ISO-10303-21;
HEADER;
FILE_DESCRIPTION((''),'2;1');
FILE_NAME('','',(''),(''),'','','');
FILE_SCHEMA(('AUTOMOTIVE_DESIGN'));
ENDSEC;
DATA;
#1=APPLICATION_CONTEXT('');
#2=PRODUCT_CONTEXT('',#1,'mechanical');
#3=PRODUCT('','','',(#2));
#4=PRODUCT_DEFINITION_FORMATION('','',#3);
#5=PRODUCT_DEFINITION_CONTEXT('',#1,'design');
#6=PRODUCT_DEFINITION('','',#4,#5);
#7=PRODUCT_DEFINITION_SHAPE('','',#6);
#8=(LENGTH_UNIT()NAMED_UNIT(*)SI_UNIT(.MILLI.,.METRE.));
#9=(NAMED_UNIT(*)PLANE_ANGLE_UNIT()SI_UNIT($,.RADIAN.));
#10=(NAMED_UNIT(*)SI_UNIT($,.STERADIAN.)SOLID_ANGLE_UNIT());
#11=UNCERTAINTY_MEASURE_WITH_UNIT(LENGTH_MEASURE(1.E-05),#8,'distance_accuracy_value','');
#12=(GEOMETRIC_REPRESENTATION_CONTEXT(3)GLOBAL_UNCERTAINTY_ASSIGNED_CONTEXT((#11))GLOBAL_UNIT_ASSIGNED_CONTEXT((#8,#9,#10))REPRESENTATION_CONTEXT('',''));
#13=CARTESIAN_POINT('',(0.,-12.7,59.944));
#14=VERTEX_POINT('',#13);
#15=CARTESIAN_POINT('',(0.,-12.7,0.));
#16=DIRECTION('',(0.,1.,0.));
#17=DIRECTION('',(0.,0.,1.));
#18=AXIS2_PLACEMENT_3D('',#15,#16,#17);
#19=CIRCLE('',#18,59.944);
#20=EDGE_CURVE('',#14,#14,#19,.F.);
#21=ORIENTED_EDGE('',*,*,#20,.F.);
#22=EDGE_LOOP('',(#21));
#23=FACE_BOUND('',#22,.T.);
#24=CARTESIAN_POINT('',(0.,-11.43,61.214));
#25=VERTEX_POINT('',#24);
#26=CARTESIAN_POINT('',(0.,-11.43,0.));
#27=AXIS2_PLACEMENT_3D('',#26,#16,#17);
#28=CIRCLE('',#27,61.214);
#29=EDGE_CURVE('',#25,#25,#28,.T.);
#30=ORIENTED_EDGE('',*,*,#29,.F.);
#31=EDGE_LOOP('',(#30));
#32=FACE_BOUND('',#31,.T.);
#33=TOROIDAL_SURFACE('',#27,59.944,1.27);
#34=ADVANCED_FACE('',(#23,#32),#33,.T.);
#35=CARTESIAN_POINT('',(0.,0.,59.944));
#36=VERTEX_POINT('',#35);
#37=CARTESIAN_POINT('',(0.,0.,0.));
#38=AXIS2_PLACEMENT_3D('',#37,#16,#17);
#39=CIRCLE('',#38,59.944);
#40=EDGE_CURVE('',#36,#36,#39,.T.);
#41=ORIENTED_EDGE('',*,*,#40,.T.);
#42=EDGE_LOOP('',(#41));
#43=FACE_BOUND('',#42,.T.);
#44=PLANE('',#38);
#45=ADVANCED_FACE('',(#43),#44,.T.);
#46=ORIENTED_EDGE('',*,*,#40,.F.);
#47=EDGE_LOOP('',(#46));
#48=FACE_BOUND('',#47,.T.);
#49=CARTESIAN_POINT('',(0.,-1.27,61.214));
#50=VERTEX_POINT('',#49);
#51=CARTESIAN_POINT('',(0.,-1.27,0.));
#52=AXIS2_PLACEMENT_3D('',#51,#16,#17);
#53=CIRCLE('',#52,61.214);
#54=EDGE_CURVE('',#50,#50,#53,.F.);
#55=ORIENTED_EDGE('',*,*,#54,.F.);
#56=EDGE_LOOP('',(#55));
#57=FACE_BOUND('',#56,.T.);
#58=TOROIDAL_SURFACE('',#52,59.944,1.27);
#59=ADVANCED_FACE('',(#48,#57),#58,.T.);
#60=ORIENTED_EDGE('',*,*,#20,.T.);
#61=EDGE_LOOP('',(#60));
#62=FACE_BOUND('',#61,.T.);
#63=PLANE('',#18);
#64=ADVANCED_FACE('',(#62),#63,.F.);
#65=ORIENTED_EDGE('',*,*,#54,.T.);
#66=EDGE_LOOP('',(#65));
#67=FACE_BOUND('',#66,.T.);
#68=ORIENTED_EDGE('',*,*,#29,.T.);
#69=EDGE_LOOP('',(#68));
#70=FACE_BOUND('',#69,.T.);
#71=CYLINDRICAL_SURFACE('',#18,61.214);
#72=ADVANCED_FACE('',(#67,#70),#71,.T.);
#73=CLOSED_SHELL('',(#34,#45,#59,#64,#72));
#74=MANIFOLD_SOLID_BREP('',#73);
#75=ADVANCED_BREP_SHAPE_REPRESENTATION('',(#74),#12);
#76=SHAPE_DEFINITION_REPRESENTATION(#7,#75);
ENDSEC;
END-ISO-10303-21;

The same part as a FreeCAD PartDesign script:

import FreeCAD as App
import Part
import Sketcher
Q = App.Units.Quantity


def edges_at(feature, points):
    """Names of the edges that pass closest to the given points."""
    edges = feature.Shape.Edges
    near = lambda p: min(range(len(edges)), key=lambda i: edges[i].distToShape(Part.Vertex(*p))[0])
    return sorted({f"Edge{near(p) + 1}" for p in points})

doc = App.newDocument("Part")
body = doc.addObject("PartDesign::Body", "Body")

# Sketch on XZ plane
sketch1 = body.newObject("Sketcher::SketchObject", "Sketch")
sketch1.AttachmentSupport = (doc.getObject("XZ_Plane"), [""])
sketch1.MapMode = "FlatFace"
sketch1.addGeometry(Part.Circle(App.Vector(0, 0, 0), App.Vector(0, 0, 1), 61), False)
sketch1.addConstraint(Sketcher.Constraint("Coincident", 0, 3, -1, 1))
sketch1.addConstraint(Sketcher.Constraint("Diameter", 0, Q("4.82 in")))
pad1 = body.newObject("PartDesign::Pad", "Pad")
pad1.Profile = sketch1
pad1.Length = Q("0.5 in")
doc.recompute()

fillet = body.newObject("PartDesign::Fillet", "Fillet")
fillet.Base = (pad1, edges_at(pad1, [(0, 0, -61.214), (0, -12.7, -61.214)]))
fillet.Radius = Q("0.05 in")

doc.recompute()
